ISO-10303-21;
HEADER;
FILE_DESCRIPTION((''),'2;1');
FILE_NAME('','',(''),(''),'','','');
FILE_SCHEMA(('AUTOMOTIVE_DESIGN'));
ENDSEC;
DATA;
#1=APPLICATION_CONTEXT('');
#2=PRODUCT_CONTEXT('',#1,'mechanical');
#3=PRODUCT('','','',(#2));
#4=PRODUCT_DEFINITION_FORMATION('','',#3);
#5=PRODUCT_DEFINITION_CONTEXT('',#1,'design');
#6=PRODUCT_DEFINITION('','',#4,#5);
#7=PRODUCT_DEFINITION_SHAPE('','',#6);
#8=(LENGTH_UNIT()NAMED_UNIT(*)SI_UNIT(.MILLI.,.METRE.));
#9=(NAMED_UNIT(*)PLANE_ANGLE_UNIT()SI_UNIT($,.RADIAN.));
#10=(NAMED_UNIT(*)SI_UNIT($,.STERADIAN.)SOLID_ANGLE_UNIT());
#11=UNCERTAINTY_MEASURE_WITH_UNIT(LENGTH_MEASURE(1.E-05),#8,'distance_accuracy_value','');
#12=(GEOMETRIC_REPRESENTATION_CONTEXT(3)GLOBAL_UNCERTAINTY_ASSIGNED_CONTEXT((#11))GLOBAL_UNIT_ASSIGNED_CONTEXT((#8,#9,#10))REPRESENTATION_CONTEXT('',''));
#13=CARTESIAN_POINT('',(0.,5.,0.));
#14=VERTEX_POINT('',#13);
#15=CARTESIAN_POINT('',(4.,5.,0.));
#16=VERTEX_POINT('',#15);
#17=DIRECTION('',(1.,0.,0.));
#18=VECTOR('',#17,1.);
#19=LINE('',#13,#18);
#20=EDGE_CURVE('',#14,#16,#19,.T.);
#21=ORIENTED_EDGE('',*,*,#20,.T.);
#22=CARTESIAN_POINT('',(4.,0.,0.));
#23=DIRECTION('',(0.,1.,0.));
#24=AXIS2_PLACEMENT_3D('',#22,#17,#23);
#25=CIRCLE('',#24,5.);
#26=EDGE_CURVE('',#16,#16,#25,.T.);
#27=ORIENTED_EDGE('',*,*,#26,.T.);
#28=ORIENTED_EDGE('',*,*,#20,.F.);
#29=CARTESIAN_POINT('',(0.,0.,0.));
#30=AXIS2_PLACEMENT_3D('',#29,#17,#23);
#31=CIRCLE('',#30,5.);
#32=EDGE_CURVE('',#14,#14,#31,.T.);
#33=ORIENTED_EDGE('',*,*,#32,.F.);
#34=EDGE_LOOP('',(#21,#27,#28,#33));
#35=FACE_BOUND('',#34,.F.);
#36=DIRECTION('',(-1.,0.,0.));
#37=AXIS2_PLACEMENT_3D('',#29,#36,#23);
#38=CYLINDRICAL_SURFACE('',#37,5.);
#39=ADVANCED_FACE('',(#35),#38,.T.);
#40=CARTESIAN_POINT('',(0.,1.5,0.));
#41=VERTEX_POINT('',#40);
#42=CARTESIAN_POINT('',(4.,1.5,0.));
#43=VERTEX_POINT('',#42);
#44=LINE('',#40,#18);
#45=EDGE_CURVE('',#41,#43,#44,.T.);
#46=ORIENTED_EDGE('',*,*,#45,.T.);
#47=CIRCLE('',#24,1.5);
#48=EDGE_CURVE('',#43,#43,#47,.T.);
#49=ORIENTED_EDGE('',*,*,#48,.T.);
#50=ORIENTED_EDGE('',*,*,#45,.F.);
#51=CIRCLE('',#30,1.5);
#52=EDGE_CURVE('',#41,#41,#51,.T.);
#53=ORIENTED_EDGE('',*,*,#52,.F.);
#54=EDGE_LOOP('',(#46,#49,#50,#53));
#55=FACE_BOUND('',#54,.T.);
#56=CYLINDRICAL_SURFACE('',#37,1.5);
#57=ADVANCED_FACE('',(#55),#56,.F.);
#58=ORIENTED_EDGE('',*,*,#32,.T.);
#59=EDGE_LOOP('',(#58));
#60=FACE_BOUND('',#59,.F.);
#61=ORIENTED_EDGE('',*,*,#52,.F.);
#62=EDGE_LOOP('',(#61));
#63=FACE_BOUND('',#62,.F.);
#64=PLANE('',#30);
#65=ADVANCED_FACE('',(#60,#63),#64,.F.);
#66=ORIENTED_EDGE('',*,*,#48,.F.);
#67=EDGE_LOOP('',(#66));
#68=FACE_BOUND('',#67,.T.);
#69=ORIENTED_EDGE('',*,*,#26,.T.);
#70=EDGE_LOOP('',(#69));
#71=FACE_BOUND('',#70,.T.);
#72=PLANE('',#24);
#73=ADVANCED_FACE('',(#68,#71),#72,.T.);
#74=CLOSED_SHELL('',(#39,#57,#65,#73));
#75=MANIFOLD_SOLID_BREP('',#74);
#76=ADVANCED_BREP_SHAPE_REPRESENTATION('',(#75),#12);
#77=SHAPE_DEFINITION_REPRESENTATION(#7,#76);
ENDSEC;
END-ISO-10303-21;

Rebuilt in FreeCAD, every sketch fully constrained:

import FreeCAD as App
import Part
import Sketcher

V = App.Vector

doc = App.newDocument("Part")
params = doc.addObject("Spreadsheet::Sheet", "Params")
for row, (alias, value) in enumerate([
    ("sketch1_diameter", "10 mm"),
    ("sketch1_diameter2", "3 mm"),
    ("pad1_length", "4 mm"),
], start=1):
    params.set(f"A{row}", alias)
    params.set(f"B{row}", "=" + value)
    params.setAlias(f"B{row}", alias)

body = doc.addObject("PartDesign::Body", "Body")

sketch1 = body.newObject("Sketcher::SketchObject", "Sketch")
sketch1.AttachmentSupport = (doc.getObject("YZ_Plane"), [""])
sketch1.MapMode = "FlatFace"
sketch1.addGeometry([
    Part.Circle(V(0, 0, 0), V(0, 0, 1), 5),
    Part.Circle(V(0, 0, 0), V(0, 0, 1), 1.5),
], False)
sketch1.addConstraint([
    Sketcher.Constraint("Coincident", 0, 3, -1, 1),
    Sketcher.Constraint("Coincident", 1, 3, -1, 1),
    Sketcher.Constraint("Diameter", 0, 10.0),
    Sketcher.Constraint("Diameter", 1, 3.0),
])
sketch1.setExpression("Constraints[2]", "Params.sketch1_diameter")
sketch1.setExpression("Constraints[3]", "Params.sketch1_diameter2")
pad1 = body.newObject("PartDesign::Pad", "Pad")
pad1.Profile = sketch1
pad1.setExpression("Length", "Params.pad1_length")

doc.recompute()
